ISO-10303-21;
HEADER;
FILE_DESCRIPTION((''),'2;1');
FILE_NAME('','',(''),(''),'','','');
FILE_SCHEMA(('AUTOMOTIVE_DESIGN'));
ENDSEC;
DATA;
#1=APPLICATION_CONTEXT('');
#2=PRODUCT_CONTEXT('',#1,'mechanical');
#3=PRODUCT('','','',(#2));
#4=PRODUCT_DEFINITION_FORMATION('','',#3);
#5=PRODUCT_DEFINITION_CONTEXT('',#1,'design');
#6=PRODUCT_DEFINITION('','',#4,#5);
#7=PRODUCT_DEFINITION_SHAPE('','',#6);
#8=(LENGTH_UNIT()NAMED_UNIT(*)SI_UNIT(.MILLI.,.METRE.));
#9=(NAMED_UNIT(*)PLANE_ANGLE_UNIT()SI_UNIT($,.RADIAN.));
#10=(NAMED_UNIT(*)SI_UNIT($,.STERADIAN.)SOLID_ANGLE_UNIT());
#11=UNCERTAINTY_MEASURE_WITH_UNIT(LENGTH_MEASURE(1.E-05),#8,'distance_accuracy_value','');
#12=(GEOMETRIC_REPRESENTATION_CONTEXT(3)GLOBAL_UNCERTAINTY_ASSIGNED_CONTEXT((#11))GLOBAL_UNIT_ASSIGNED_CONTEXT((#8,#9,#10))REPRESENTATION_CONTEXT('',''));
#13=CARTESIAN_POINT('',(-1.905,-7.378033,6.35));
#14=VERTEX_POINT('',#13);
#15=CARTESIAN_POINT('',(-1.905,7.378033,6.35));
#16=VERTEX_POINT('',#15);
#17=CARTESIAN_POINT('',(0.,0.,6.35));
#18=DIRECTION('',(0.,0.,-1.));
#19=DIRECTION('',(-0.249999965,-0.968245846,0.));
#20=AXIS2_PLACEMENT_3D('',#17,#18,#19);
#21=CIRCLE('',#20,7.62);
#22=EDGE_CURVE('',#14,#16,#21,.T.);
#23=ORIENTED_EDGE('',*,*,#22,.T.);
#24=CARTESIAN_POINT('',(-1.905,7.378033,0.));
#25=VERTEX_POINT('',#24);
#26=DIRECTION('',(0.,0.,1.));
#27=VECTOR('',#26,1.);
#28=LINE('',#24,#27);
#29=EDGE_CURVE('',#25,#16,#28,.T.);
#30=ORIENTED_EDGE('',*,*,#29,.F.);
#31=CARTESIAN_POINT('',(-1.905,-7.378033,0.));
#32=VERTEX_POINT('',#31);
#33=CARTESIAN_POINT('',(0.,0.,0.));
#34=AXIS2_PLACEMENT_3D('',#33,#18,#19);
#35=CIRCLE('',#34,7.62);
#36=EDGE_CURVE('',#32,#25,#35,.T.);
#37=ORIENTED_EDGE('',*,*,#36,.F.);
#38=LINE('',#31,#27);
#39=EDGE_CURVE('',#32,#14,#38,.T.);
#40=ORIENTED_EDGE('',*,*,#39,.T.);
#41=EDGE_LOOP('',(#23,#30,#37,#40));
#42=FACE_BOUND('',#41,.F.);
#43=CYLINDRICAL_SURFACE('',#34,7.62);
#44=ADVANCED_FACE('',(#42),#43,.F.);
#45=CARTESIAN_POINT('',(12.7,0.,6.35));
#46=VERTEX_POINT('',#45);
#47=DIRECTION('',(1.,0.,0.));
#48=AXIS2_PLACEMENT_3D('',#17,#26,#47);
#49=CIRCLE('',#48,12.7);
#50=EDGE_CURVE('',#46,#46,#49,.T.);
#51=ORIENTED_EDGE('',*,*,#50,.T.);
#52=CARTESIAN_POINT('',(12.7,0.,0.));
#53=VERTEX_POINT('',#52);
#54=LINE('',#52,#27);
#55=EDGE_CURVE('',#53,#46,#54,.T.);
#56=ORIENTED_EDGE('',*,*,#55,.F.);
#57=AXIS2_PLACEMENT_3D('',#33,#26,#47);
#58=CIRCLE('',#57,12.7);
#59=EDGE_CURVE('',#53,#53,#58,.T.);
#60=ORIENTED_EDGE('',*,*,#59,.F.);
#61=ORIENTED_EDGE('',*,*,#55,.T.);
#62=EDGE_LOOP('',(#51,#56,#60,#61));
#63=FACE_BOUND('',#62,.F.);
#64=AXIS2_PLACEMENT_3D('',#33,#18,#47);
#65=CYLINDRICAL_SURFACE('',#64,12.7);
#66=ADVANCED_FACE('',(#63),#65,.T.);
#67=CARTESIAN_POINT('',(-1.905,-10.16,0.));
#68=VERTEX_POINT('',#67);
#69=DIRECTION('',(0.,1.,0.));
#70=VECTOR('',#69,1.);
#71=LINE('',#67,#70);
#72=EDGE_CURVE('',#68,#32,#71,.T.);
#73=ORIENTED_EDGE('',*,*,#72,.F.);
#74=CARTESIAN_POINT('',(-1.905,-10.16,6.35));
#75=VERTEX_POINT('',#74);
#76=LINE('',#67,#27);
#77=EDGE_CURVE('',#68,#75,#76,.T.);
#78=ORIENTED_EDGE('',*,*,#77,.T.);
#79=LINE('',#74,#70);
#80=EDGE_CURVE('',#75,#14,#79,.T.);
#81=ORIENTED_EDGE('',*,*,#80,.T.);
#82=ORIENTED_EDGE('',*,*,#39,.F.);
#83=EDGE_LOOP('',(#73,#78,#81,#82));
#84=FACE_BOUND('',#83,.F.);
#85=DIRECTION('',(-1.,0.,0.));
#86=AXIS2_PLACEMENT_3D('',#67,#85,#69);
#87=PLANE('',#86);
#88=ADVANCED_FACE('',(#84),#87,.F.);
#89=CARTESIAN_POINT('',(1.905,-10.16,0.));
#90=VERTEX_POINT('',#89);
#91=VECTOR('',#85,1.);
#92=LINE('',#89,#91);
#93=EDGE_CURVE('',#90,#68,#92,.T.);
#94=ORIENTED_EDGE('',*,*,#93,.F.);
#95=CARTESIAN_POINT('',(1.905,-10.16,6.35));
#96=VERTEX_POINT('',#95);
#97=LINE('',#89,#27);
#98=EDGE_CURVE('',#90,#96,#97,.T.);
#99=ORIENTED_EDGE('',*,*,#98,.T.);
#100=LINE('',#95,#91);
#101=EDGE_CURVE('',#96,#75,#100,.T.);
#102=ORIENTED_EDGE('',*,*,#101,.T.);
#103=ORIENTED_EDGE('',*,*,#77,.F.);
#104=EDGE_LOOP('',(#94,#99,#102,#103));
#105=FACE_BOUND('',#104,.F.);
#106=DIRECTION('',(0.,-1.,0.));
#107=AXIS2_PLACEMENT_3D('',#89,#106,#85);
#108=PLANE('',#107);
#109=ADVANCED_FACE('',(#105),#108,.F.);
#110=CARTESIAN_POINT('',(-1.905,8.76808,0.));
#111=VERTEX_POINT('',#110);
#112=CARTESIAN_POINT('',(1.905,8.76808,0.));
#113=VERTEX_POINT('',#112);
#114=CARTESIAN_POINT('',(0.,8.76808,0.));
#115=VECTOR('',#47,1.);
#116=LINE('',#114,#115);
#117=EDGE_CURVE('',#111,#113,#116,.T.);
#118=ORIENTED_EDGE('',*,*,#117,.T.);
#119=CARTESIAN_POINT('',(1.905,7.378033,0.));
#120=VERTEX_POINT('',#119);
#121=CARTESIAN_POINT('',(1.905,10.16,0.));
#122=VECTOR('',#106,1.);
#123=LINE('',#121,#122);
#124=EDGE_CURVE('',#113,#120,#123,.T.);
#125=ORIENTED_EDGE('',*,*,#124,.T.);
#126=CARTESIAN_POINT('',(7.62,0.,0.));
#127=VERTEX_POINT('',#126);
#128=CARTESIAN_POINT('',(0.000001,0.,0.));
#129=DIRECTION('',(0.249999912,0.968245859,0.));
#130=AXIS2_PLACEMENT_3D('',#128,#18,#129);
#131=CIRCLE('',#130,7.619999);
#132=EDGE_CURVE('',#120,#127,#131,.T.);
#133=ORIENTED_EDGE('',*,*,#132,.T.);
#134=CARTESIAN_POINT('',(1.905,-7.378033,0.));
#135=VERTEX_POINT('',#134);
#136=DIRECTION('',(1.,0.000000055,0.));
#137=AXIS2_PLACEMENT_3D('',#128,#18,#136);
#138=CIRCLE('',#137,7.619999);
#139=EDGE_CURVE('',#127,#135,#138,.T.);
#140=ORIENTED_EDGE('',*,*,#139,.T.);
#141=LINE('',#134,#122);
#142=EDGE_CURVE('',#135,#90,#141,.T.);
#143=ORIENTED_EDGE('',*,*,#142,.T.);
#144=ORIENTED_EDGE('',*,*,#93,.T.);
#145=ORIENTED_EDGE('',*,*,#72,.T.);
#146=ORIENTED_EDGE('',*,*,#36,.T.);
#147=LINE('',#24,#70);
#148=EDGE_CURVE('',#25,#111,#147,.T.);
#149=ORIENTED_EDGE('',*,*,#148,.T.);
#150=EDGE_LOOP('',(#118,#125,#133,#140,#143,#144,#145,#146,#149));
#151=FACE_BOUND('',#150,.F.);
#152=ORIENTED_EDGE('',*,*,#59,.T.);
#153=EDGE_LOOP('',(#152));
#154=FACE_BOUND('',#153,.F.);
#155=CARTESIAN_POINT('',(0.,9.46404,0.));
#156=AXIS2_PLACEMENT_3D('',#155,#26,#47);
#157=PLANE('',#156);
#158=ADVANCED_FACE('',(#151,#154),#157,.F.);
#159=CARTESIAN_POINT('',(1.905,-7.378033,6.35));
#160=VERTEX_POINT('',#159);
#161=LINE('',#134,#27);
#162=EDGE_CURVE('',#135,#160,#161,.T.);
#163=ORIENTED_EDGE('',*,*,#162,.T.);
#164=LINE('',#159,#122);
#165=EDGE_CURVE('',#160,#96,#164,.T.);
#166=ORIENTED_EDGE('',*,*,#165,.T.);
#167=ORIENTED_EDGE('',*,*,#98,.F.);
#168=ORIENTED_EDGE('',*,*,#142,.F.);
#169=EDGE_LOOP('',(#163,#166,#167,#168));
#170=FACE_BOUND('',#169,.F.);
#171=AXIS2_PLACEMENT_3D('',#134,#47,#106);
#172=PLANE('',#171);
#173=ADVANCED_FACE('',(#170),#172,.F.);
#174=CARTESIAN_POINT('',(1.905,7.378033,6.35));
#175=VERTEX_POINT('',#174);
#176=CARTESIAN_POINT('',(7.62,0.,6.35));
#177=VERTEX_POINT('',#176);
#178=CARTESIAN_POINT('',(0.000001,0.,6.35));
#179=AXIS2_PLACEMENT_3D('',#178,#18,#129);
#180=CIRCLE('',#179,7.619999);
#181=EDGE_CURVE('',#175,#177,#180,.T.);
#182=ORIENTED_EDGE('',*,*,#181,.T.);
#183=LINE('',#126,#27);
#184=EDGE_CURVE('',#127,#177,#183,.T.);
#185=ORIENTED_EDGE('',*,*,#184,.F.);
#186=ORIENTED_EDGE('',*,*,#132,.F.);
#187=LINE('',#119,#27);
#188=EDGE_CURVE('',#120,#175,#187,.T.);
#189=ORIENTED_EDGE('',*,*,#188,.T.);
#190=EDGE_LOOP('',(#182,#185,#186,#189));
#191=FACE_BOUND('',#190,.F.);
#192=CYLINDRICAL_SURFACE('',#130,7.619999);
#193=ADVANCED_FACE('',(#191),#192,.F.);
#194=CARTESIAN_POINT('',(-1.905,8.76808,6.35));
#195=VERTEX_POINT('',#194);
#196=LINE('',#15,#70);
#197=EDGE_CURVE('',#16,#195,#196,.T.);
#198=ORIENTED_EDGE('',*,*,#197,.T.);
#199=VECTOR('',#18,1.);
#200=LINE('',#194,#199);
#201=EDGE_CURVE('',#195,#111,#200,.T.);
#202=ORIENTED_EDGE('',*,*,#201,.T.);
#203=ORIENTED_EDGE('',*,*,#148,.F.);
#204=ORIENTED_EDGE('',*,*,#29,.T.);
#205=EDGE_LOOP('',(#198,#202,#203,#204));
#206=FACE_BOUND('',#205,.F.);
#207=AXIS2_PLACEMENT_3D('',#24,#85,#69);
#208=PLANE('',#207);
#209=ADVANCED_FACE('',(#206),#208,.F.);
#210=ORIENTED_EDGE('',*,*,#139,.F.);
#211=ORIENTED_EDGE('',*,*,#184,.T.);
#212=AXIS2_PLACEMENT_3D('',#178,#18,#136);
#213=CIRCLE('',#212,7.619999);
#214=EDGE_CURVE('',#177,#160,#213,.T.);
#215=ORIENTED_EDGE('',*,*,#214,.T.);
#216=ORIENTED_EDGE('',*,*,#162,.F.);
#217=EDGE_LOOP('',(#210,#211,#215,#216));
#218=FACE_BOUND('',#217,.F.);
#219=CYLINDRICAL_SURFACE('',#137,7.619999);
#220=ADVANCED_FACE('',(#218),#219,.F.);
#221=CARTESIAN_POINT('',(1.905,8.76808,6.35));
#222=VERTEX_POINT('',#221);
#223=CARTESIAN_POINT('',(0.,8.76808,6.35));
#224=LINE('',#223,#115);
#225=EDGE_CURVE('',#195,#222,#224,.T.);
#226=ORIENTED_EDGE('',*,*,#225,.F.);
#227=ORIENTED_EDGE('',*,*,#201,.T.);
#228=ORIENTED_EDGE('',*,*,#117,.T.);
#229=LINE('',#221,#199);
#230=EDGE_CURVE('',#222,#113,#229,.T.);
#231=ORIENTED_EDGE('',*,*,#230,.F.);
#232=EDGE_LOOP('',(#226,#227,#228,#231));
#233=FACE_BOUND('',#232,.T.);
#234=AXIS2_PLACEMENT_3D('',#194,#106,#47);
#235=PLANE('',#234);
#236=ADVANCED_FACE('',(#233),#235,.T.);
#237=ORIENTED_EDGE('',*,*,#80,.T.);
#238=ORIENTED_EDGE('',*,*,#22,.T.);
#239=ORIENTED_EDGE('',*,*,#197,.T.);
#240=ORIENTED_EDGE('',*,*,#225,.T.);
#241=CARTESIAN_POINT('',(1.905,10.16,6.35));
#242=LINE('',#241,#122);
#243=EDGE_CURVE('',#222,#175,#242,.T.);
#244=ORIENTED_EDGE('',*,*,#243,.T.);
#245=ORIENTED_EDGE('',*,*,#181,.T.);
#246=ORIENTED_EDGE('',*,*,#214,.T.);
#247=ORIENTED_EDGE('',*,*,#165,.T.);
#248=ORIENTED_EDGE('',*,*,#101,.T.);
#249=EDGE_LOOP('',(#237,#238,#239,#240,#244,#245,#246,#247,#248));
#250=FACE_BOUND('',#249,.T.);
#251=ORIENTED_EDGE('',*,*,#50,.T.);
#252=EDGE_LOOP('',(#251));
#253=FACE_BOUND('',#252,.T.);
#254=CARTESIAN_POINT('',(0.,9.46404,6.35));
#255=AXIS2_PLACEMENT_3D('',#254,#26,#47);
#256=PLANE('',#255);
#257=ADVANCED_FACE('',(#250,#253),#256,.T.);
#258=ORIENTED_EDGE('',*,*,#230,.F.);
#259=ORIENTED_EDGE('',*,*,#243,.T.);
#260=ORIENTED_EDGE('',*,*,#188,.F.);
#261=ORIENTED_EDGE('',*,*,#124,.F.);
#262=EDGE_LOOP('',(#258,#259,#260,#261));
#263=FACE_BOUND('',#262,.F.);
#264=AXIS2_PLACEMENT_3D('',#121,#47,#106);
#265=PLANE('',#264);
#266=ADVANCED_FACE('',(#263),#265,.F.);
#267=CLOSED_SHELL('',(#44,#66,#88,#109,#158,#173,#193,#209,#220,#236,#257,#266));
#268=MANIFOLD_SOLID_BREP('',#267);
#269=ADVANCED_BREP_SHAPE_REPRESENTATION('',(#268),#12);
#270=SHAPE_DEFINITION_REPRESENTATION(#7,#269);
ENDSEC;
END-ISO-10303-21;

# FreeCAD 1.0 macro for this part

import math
import FreeCAD as App
import Part
import Sketcher

V = App.Vector
Q = App.Units.Quantity

doc = App.newDocument("Part")
params = doc.addObject("Spreadsheet::Sheet", "Params")
for row, (alias, value) in enumerate([
    ("sketch1_diameter", "1 in"),
    ("sketch1_radius", "0.3 in"),
    ("sketch1_width", "0.15 in"),
    ("pad1_length", "0.25 in"),
    ("sketch2_width", "0.15 in"),
    ("pad2_length", "0.25 in"),
], start=1):
    params.set(f"A{row}", alias)
    params.set(f"B{row}", "=" + value)
    params.setAlias(f"B{row}", alias)

body = doc.addObject("PartDesign::Body", "Body")

# Sketch on XY plane
sketch1 = doc.addObject("Sketcher::SketchObject", "Sketch")
body.addObject(sketch1)
sketch1.AttachmentSupport = (doc.XY_Plane, [""])
sketch1.MapMode = "FlatFace"
sketch1.addGeometry(Part.Circle(V(0, 0, 0), V(0, 0, 1), 12.7), False)
sketch1.addGeometry(Part.LineSegment(V(1.9, 10.2, 0), V(1.9, 7.4, 0)), False)
sketch1.addGeometry(Part.ArcOfCircle(Part.Circle(V(0, 0, 0), V(0, 0, 1), 7.6), math.radians(0), math.radians(76)), False)
sketch1.addGeometry(Part.ArcOfCircle(Part.Circle(V(0, 0, 0), V(0, 0, 1), 7.6), math.radians(-76), math.radians(0)), False)
sketch1.addGeometry(Part.LineSegment(V(1.9, -7.4, 0), V(1.9, -10.2, 0)), False)
sketch1.addGeometry(Part.LineSegment(V(1.9, -10.2, 0), V(-1.9, -10.2, 0)), False)
sketch1.addGeometry(Part.LineSegment(V(-1.9, -10.2, 0), V(-1.9, -7.4, 0)), False)
sketch1.addGeometry(Part.ArcOfCircle(Part.Circle(V(0, 0, 0), V(0, 0, 1), 7.6), math.radians(104), math.radians(256)), False)
sketch1.addGeometry(Part.LineSegment(V(-1.9, 7.4, 0), V(-1.9, 10.2, 0)), False)
sketch1.addGeometry(Part.LineSegment(V(-1.9, 10.2, 0), V(1.9, 10.2, 0)), False)
sketch1.addConstraint(Sketcher.Constraint("Coincident", 1, 2, 2, 2))
sketch1.addConstraint(Sketcher.Constraint("Tangent", 2, 1, 3, 2))
sketch1.addConstraint(Sketcher.Constraint("Coincident", 3, 1, 4, 1))
sketch1.addConstraint(Sketcher.Constraint("Coincident", 4, 2, 5, 1))
sketch1.addConstraint(Sketcher.Constraint("Coincident", 5, 2, 6, 1))
sketch1.addConstraint(Sketcher.Constraint("Coincident", 6, 2, 7, 2))
sketch1.addConstraint(Sketcher.Constraint("Coincident", 7, 1, 8, 1))
sketch1.addConstraint(Sketcher.Constraint("Coincident", 8, 2, 9, 1))
sketch1.addConstraint(Sketcher.Constraint("Coincident", 9, 2, 1, 1))
sketch1.addConstraint(Sketcher.Constraint("Vertical", 1))
sketch1.addConstraint(Sketcher.Constraint("Vertical", 4))
sketch1.addConstraint(Sketcher.Constraint("Horizontal", 5))
sketch1.addConstraint(Sketcher.Constraint("Vertical", 6))
sketch1.addConstraint(Sketcher.Constraint("Vertical", 8))
sketch1.addConstraint(Sketcher.Constraint("Horizontal", 9))
sketch1.addConstraint(Sketcher.Constraint("Coincident", 0, 3, -1, 1))
sketch1.addConstraint(Sketcher.Constraint("Coincident", 2, 3, -1, 1))
sketch1.addConstraint(Sketcher.Constraint("Coincident", 7, 3, -1, 1))
sketch1.addConstraint(Sketcher.Constraint("Equal", 2, 3))
sketch1.addConstraint(Sketcher.Constraint("Equal", 3, 7))
sketch1.addConstraint(Sketcher.Constraint("Symmetric", 4, 2, 8, 2, -1, 1))
sketch1.addConstraint(Sketcher.Constraint("PointOnObject", 2, 1, -1))
sketch1.addConstraint(Sketcher.Constraint("Horizontal", 3, 1, 6, 2))
sketch1.addConstraint(Sketcher.Constraint("Horizontal", 1, 2, 7, 1))
sketch1.addConstraint(Sketcher.Constraint("Diameter", 0, Q("1 in")))
sketch1.addConstraint(Sketcher.Constraint("Radius", 2, Q("0.3 in")))
sketch1.addConstraint(Sketcher.Constraint("DistanceX", 5, 2, 5, 1, Q("0.15 in")))
sketch1.addConstraint(Sketcher.Constraint("DistanceY", 4, 2, -1, 1, Q("0.4 in")))
sketch1.setExpression("Constraints[24]", "Params.sketch1_diameter")
sketch1.setExpression("Constraints[25]", "Params.sketch1_radius")
sketch1.setExpression("Constraints[26]", "Params.sketch1_width")
pad1 = doc.addObject("PartDesign::Pad", "Pad")
body.addObject(pad1)
pad1.Profile = sketch1
pad1.setExpression("Length", "Params.pad1_length")

# Sketch on XY plane
sketch2 = doc.addObject("Sketcher::SketchObject", "Sketch001")
body.addObject(sketch2)
sketch2.AttachmentSupport = (doc.XY_Plane, [""])
sketch2.MapMode = "FlatFace"
sketch2.AttachmentOffset = App.Placement(V(0, 0, 0.25 * 25.4), App.Rotation())
sketch2.addGeometry(Part.LineSegment(V(-1.9, 10.2, 0), V(-1.9, 8.8, 0)), False)
sketch2.addGeometry(Part.LineSegment(V(-1.9, 8.8, 0), V(1.9, 8.8, 0)), False)
sketch2.addGeometry(Part.LineSegment(V(1.9, 8.8, 0), V(1.9, 10.2, 0)), False)
sketch2.addGeometry(Part.LineSegment(V(1.9, 10.2, 0), V(-1.9, 10.2, 0)), False)
sketch2.addConstraint(Sketcher.Constraint("Coincident", 0, 2, 1, 1))
sketch2.addConstraint(Sketcher.Constraint("Coincident", 1, 2, 2, 1))
sketch2.addConstraint(Sketcher.Constraint("Coincident", 2, 2, 3, 1))
sketch2.addConstraint(Sketcher.Constraint("Coincident", 3, 2, 0, 1))
sketch2.addConstraint(Sketcher.Constraint("Vertical", 0))
sketch2.addConstraint(Sketcher.Constraint("Horizontal", 1))
sketch2.addConstraint(Sketcher.Constraint("Vertical", 2))
sketch2.addConstraint(Sketcher.Constraint("Horizontal", 3))
sketch2.addConstraint(Sketcher.Constraint("DistanceX", 1, 1, 1, 2, Q("0.15 in")))
sketch2.addConstraint(Sketcher.Constraint("DistanceY", -1, 1, 2, 2, Q("0.4 in")))
sketch2.addConstraint(Sketcher.Constraint("DistanceY", 0, 2, 0, 1, Q("0.0548 in")))
sketch2.addConstraint(Sketcher.Constraint("DistanceX", 0, 2, -1, 1, Q("0.075 in")))
sketch2.setExpression("Constraints[8]", "Params.sketch2_width")
pad2 = doc.addObject("PartDesign::Pad", "Pad001")
body.addObject(pad2)
pad2.Profile = sketch2
pad2.setExpression("Length", "Params.pad2_length")
pad2.Reversed = True

doc.recompute()
